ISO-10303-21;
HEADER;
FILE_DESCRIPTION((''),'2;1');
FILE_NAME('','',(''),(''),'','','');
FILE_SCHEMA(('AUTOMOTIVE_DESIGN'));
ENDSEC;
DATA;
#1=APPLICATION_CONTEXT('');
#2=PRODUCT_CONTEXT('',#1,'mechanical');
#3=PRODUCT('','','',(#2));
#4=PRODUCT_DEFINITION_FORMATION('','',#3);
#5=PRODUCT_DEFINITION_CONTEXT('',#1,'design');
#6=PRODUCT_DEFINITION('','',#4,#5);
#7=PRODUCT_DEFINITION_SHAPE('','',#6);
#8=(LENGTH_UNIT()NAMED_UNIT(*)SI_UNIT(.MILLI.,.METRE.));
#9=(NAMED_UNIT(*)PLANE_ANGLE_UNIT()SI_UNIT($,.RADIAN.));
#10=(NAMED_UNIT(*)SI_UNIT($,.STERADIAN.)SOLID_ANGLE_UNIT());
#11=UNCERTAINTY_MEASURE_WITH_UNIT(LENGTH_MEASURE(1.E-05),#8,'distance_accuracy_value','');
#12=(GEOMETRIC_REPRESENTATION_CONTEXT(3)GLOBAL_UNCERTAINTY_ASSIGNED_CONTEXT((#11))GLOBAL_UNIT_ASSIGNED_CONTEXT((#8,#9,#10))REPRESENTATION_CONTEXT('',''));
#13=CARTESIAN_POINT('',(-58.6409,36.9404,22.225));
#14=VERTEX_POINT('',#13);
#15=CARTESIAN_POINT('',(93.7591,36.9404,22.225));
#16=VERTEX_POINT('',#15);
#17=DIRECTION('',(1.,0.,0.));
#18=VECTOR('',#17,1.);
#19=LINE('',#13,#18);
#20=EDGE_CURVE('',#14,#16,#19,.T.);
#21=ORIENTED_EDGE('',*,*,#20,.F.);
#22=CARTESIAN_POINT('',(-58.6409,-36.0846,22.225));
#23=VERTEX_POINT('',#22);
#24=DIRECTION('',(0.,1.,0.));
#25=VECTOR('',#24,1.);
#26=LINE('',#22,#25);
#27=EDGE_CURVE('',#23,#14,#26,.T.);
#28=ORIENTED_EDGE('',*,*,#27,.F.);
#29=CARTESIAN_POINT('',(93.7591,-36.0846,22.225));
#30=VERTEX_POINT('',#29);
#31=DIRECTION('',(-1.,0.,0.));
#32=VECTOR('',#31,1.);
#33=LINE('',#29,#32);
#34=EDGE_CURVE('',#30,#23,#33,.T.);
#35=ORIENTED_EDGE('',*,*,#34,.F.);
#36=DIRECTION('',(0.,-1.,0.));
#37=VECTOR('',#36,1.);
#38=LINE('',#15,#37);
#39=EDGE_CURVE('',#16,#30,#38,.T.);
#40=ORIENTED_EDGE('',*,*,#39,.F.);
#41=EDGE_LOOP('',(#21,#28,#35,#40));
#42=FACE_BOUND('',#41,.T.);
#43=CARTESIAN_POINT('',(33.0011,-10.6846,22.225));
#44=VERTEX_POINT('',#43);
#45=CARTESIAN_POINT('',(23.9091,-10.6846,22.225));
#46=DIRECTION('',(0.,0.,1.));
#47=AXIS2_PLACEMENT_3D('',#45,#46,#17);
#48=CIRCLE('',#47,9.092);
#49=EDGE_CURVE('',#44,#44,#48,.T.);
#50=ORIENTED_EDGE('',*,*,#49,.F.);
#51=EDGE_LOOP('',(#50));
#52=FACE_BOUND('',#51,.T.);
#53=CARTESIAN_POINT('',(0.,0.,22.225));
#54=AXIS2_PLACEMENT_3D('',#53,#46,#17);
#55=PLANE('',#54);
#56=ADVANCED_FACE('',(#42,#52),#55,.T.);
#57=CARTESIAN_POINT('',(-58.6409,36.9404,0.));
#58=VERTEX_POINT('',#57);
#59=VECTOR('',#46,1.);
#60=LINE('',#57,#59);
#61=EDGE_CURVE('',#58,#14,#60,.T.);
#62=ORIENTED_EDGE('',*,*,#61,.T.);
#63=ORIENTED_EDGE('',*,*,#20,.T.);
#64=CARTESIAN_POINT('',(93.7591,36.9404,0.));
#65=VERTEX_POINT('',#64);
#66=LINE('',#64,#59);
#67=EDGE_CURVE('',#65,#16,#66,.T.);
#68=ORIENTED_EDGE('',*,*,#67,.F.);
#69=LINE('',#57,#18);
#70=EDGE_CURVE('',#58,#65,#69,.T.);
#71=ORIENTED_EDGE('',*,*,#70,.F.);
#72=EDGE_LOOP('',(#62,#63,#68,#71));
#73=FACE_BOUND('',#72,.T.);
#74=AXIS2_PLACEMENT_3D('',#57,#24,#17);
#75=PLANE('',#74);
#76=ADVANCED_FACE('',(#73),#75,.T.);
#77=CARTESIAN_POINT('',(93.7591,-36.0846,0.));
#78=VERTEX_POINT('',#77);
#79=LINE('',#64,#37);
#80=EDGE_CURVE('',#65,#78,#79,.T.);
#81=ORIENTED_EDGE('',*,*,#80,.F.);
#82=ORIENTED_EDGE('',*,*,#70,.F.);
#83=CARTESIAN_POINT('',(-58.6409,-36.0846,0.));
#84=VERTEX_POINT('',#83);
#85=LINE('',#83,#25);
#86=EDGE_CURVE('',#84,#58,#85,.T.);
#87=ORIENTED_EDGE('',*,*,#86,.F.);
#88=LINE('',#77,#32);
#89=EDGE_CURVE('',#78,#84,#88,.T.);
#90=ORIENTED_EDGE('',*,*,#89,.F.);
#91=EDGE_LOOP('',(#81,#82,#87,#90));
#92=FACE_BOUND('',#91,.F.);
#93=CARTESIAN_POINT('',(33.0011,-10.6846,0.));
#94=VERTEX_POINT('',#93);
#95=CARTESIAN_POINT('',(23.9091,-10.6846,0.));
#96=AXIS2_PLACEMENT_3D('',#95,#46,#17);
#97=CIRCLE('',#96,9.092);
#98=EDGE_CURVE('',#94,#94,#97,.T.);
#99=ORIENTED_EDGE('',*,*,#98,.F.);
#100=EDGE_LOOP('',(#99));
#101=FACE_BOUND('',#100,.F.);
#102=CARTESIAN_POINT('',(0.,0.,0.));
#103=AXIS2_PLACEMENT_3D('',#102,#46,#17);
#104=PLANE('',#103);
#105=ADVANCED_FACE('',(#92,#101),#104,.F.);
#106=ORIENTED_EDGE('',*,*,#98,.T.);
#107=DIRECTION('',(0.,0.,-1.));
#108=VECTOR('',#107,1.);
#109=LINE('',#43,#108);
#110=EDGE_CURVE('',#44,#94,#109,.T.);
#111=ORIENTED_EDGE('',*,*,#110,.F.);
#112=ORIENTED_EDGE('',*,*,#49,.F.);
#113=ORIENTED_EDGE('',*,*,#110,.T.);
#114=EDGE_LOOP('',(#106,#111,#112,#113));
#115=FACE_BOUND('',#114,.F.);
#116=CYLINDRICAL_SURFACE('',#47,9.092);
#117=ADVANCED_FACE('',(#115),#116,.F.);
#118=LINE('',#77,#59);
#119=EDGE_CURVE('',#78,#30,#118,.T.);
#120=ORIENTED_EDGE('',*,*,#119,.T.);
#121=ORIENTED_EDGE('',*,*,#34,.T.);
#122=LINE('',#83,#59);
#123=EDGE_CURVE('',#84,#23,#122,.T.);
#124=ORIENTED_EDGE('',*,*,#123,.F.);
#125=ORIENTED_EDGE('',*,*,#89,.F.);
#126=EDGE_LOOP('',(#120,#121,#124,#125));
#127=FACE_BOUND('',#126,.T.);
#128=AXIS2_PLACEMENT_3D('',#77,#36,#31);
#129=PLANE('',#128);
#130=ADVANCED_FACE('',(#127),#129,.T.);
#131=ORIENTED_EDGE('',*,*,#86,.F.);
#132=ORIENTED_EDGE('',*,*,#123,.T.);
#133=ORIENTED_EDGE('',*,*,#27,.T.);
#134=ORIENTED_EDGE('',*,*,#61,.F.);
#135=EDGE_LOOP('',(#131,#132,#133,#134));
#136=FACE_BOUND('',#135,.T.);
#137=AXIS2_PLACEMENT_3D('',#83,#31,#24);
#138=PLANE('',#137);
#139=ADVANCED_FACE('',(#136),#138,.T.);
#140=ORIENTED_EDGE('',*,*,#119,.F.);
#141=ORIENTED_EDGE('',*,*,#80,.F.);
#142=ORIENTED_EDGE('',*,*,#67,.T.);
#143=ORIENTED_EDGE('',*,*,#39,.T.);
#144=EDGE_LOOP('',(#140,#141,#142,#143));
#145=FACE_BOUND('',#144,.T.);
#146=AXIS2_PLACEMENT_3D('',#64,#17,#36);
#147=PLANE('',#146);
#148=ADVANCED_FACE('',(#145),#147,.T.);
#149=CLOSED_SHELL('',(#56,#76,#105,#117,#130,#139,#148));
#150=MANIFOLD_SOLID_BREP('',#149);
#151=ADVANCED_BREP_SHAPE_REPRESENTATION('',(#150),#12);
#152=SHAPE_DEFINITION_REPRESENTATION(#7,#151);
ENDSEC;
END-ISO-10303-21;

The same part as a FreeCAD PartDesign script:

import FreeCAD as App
import Part
import Sketcher
Q = App.Units.Quantity


def add_polygon(sketch, points):
    """Adds a closed chain of lines whose ends are joined by coincident constraints."""
    first, n = sketch.GeometryCount, len(points)
    for a, b in zip(points, points[1:] + points[:1]):
        sketch.addGeometry(Part.LineSegment(App.Vector(*a, 0), App.Vector(*b, 0)), False)
    for i in range(n):
        sketch.addConstraint(Sketcher.Constraint("Coincident", first + i, 2, first + (i + 1) % n, 1))

doc = App.newDocument("Part")
body = doc.addObject("PartDesign::Body", "Body")

# Sketch on XY plane
sketch1 = doc.addObject("Sketcher::SketchObject", "Sketch")
body.addObject(sketch1)
sketch1.AttachmentSupport = (doc.XY_Plane, [""])
sketch1.MapMode = "FlatFace"
add_polygon(sketch1, [(94, 37), (-59, 37), (-59, -36), (94, -36)])  # lines 0-3
sketch1.addConstraint(Sketcher.Constraint("Horizontal", 0))
sketch1.addConstraint(Sketcher.Constraint("Vertical", 1))
sketch1.addConstraint(Sketcher.Constraint("Horizontal", 2))
sketch1.addConstraint(Sketcher.Constraint("Vertical", 3))
sketch1.addConstraint(Sketcher.Constraint("DistanceX", 0, 2, 0, 1, Q("6 in")))
sketch1.addConstraint(Sketcher.Constraint("DistanceY", 1, 2, 1, 1, Q("2.875 in")))
sketch1.addConstraint(Sketcher.Constraint("DistanceX", 0, 2, -1, 1, Q("2.3087 in")))
sketch1.addConstraint(Sketcher.Constraint("DistanceY", -1, 1, 0, 2, 36.9404))
pad1 = doc.addObject("PartDesign::Pad", "Pad")
body.addObject(pad1)
pad1.Profile = sketch1
pad1.Length = Q("0.875 in")

# Sketch on XY plane
sketch2 = doc.addObject("Sketcher::SketchObject", "Sketch001")
body.addObject(sketch2)
sketch2.AttachmentSupport = (doc.XY_Plane, [""])
sketch2.MapMode = "FlatFace"
sketch2.AttachmentOffset = App.Placement(App.Vector(0, 0, 0.875 * 25.4), App.Rotation())
sketch2.addGeometry(Part.Circle(App.Vector(24, -11, 0), App.Vector(0, 0, 1), 9), False)
sketch2.addConstraint(Sketcher.Constraint("Diameter", 0, Q("0.7159 in")))
sketch2.addConstraint(Sketcher.Constraint("DistanceX", -1, 1, 0, 3, Q("0.9413 in")))
sketch2.addConstraint(Sketcher.Constraint("DistanceY", 0, 3, -1, 1, 10.6846))
pocket1 = doc.addObject("PartDesign::Pocket", "Pocket")
body.addObject(pocket1)
pocket1.Profile = sketch2
pocket1.Length = Q("0.875 in")

doc.recompute()
